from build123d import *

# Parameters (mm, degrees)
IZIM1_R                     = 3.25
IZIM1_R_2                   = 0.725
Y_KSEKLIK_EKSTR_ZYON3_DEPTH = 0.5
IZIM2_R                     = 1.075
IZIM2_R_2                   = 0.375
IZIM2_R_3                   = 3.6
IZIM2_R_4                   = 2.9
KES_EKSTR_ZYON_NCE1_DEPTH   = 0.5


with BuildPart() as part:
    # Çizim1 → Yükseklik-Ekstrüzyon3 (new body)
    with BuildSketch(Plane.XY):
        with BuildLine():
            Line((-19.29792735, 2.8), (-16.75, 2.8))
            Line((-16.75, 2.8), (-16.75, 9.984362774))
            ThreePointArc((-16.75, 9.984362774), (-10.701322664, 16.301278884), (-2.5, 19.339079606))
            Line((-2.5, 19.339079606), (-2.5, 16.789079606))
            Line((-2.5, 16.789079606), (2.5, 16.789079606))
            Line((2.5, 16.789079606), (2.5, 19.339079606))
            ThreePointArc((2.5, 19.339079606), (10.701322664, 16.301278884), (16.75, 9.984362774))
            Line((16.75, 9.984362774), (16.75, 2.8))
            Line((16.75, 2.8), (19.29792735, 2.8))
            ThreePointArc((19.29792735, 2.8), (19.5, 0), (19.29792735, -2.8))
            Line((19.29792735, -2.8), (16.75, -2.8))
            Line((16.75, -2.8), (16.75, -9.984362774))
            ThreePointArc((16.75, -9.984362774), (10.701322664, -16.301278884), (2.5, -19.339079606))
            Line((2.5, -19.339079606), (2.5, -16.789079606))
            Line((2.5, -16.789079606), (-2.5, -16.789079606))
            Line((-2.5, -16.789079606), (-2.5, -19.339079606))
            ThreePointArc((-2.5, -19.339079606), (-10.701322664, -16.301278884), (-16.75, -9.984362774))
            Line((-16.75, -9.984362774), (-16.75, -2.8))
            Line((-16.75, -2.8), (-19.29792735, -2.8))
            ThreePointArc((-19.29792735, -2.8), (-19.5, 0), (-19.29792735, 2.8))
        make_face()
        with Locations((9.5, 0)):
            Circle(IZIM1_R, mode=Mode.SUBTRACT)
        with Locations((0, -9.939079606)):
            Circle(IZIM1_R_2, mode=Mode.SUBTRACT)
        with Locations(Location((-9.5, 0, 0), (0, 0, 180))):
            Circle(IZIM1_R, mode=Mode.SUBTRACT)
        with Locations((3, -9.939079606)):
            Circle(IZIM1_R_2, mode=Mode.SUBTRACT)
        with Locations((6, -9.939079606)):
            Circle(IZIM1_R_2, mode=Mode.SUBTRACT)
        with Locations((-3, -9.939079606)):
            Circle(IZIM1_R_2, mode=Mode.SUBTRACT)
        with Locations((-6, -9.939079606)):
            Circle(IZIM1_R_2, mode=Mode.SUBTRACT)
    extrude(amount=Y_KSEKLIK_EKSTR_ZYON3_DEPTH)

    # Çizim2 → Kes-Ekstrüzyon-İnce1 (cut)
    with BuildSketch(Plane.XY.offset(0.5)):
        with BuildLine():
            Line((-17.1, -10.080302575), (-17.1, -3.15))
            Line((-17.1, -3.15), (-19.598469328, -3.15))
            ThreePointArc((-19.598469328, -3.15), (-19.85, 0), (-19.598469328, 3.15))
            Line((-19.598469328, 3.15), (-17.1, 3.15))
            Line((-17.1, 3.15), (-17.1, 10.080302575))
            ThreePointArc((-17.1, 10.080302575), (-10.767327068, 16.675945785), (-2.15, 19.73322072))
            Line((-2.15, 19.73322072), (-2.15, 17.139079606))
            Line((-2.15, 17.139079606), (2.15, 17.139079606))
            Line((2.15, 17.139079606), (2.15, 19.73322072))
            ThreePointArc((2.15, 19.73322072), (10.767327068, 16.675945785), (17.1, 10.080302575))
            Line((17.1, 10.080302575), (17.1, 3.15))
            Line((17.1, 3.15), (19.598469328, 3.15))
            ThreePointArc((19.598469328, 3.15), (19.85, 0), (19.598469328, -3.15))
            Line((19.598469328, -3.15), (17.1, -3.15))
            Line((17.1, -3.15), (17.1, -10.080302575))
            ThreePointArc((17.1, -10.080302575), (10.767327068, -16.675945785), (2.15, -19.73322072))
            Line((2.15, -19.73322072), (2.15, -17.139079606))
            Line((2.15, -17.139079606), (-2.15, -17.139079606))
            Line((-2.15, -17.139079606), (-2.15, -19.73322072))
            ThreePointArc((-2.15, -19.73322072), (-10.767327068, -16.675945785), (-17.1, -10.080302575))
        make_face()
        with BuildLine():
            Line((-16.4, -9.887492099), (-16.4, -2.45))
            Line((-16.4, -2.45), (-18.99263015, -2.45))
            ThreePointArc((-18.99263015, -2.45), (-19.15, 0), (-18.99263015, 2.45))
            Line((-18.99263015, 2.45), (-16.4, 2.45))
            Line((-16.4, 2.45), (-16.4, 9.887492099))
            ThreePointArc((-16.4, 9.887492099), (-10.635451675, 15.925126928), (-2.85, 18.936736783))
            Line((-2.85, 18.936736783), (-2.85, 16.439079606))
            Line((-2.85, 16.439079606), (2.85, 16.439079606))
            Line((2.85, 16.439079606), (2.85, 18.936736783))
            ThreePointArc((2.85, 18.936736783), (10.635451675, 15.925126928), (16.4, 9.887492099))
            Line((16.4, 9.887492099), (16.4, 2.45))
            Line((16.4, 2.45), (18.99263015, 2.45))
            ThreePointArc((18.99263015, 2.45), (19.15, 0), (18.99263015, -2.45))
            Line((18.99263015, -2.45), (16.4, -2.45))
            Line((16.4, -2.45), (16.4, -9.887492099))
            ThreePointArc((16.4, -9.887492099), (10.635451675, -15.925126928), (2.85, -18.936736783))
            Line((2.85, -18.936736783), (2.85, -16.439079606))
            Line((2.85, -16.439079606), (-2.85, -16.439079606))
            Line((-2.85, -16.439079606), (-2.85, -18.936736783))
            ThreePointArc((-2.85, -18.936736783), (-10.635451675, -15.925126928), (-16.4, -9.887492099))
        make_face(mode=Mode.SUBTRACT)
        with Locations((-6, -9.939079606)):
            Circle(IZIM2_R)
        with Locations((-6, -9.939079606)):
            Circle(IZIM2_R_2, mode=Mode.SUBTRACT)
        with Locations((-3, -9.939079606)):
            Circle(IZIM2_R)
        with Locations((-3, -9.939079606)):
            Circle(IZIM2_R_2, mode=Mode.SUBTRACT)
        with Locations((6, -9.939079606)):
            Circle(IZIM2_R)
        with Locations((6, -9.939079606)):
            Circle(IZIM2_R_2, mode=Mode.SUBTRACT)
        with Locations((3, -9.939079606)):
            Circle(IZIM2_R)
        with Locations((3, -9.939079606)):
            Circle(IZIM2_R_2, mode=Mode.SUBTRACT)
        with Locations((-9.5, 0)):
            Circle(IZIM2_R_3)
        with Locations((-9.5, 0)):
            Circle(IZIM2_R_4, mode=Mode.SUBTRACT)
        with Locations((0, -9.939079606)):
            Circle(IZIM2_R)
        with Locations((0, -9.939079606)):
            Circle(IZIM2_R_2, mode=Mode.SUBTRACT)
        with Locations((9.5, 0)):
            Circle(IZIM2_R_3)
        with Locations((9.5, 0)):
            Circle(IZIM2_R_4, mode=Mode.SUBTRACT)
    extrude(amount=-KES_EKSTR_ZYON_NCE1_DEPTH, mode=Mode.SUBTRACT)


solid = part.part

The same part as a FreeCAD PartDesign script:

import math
import FreeCAD as App
import Part
import Sketcher

V = App.Vector

doc = App.newDocument("Part")
body = doc.addObject("PartDesign::Body", "Body")

# Sketch on XY plane
sketch1 = doc.addObject("Sketcher::SketchObject", "Sketch")
body.addObject(sketch1)
sketch1.AttachmentSupport = (doc.XY_Plane, [""])
sketch1.MapMode = "FlatFace"
sketch1.addGeometry(Part.LineSegment(V(-16.8, 2.8, 0), V(-19.3, 2.8, 0)), False)
sketch1.addGeometry(Part.ArcOfCircle(Part.Circle(V(0, 0, 0), V(0, 0, 1), 19.5), math.radians(171.74), math.radians(188.26)), False)
sketch1.addGeometry(Part.LineSegment(V(-19.3, -2.8, 0), V(-16.8, -2.8, 0)), False)
sketch1.addGeometry(Part.LineSegment(V(-16.8, -2.8, 0), V(-16.8, -10, 0)), False)
sketch1.addGeometry(Part.ArcOfCircle(Part.Circle(V(0, 0, 0), V(0, 0, 1), 19.5), math.radians(-149), math.radians(-97)), False)
sketch1.addGeometry(Part.LineSegment(V(-2.5, -19.3, 0), V(-2.5, -16.8, 0)), False)
sketch1.addGeometry(Part.LineSegment(V(-2.5, -16.8, 0), V(2.5, -16.8, 0)), False)
sketch1.addGeometry(Part.LineSegment(V(2.5, -16.8, 0), V(2.5, -19.3, 0)), False)
sketch1.addGeometry(Part.ArcOfCircle(Part.Circle(V(0, 0, 0), V(0, 0, 1), 19.5), math.radians(-83), math.radians(-31)), False)
sketch1.addGeometry(Part.LineSegment(V(16.8, -10, 0), V(16.8, -2.8, 0)), False)
sketch1.addGeometry(Part.LineSegment(V(16.8, -2.8, 0), V(19.3, -2.8, 0)), False)
sketch1.addGeometry(Part.ArcOfCircle(Part.Circle(V(0, 0, 0), V(0, 0, 1), 19.5), math.radians(-8.26), math.radians(8.26)), False)
sketch1.addGeometry(Part.LineSegment(V(19.3, 2.8, 0), V(16.8, 2.8, 0)), False)
sketch1.addGeometry(Part.LineSegment(V(16.8, 2.8, 0), V(16.8, 10, 0)), False)
sketch1.addGeometry(Part.ArcOfCircle(Part.Circle(V(0, 0, 0), V(0, 0, 1), 19.5), math.radians(31), math.radians(83)), False)
sketch1.addGeometry(Part.LineSegment(V(2.5, 19.3, 0), V(2.5, 16.8, 0)), False)
sketch1.addGeometry(Part.LineSegment(V(2.5, 16.8, 0), V(-2.5, 16.8, 0)), False)
sketch1.addGeometry(Part.LineSegment(V(-2.5, 16.8, 0), V(-2.5, 19.3, 0)), False)
sketch1.addGeometry(Part.ArcOfCircle(Part.Circle(V(0, 0, 0), V(0, 0, 1), 19.5), math.radians(97), math.radians(149)), False)
sketch1.addGeometry(Part.LineSegment(V(-16.8, 10, 0), V(-16.8, 2.8, 0)), False)
sketch1.addGeometry(Part.Circle(V(6, -9.9, 0), V(0, 0, 1), 0.7), False)
sketch1.addGeometry(Part.Circle(V(3, -9.9, 0), V(0, 0, 1), 0.7), False)
sketch1.addGeometry(Part.Circle(V(0, -9.9, 0), V(0, 0, 1), 0.7), False)
sketch1.addGeometry(Part.Circle(V(-3, -9.9, 0), V(0, 0, 1), 0.7), False)
sketch1.addGeometry(Part.Circle(V(-6, -9.9, 0), V(0, 0, 1), 0.7), False)
sketch1.addGeometry(Part.Circle(V(9.5, 0, 0), V(0, 0, 1), 3.2), False)
sketch1.addGeometry(Part.Circle(V(-9.5, 0, 0), V(0, 0, 1), 3.2), False)
sketch1.addConstraint(Sketcher.Constraint("Coincident", 0, 2, 1, 1))
sketch1.addConstraint(Sketcher.Constraint("Coincident", 1, 2, 2, 1))
sketch1.addConstraint(Sketcher.Constraint("Coincident", 2, 2, 3, 1))
sketch1.addConstraint(Sketcher.Constraint("Coincident", 3, 2, 4, 1))
sketch1.addConstraint(Sketcher.Constraint("Coincident", 4, 2, 5, 1))
sketch1.addConstraint(Sketcher.Constraint("Coincident", 5, 2, 6, 1))
sketch1.addConstraint(Sketcher.Constraint("Coincident", 6, 2, 7, 1))
sketch1.addConstraint(Sketcher.Constraint("Coincident", 7, 2, 8, 1))
sketch1.addConstraint(Sketcher.Constraint("Coincident", 8, 2, 9, 1))
sketch1.addConstraint(Sketcher.Constraint("Coincident", 9, 2, 10, 1))
sketch1.addConstraint(Sketcher.Constraint("Coincident", 10, 2, 11, 1))
sketch1.addConstraint(Sketcher.Constraint("Coincident", 11, 2, 12, 1))
sketch1.addConstraint(Sketcher.Constraint("Coincident", 12, 2, 13, 1))
sketch1.addConstraint(Sketcher.Constraint("Coincident", 13, 2, 14, 1))
sketch1.addConstraint(Sketcher.Constraint("Coincident", 14, 2, 15, 1))
sketch1.addConstraint(Sketcher.Constraint("Coincident", 15, 2, 16, 1))
sketch1.addConstraint(Sketcher.Constraint("Coincident", 16, 2, 17, 1))
sketch1.addConstraint(Sketcher.Constraint("Coincident", 17, 2, 18, 1))
sketch1.addConstraint(Sketcher.Constraint("Coincident", 18, 2, 19, 1))
sketch1.addConstraint(Sketcher.Constraint("Coincident", 19, 2, 0, 1))
sketch1.addConstraint(Sketcher.Constraint("Horizontal", 0))
sketch1.addConstraint(Sketcher.Constraint("Horizontal", 2))
sketch1.addConstraint(Sketcher.Constraint("Vertical", 3))
sketch1.addConstraint(Sketcher.Constraint("Vertical", 5))
sketch1.addConstraint(Sketcher.Constraint("Horizontal", 6))
sketch1.addConstraint(Sketcher.Constraint("Vertical", 7))
sketch1.addConstraint(Sketcher.Constraint("Vertical", 9))
sketch1.addConstraint(Sketcher.Constraint("Horizontal", 10))
sketch1.addConstraint(Sketcher.Constraint("Horizontal", 12))
sketch1.addConstraint(Sketcher.Constraint("Vertical", 13))
sketch1.addConstraint(Sketcher.Constraint("Vertical", 15))
sketch1.addConstraint(Sketcher.Constraint("Horizontal", 16))
sketch1.addConstraint(Sketcher.Constraint("Vertical", 17))
sketch1.addConstraint(Sketcher.Constraint("Vertical", 19))
sketch1.addConstraint(Sketcher.Constraint("Coincident", 1, 3, -1, 1))
sketch1.addConstraint(Sketcher.Constraint("Coincident", 4, 3, -1, 1))
sketch1.addConstraint(Sketcher.Constraint("Coincident", 8, 3, -1, 1))
sketch1.addConstraint(Sketcher.Constraint("Coincident", 11, 3, -1, 1))
sketch1.addConstraint(Sketcher.Constraint("Coincident", 14, 3, -1, 1))
sketch1.addConstraint(Sketcher.Constraint("Coincident", 18, 3, -1, 1))
sketch1.addConstraint(Sketcher.Constraint("Equal", 1, 4))
sketch1.addConstraint(Sketcher.Constraint("Equal", 4, 8))
sketch1.addConstraint(Sketcher.Constraint("Equal", 8, 11))
sketch1.addConstraint(Sketcher.Constraint("Equal", 11, 14))
sketch1.addConstraint(Sketcher.Constraint("Equal", 14, 18))
sketch1.addConstraint(Sketcher.Constraint("Equal", 20, 21))
sketch1.addConstraint(Sketcher.Constraint("Equal", 21, 22))
sketch1.addConstraint(Sketcher.Constraint("Equal", 22, 23))
sketch1.addConstraint(Sketcher.Constraint("Equal", 23, 24))
sketch1.addConstraint(Sketcher.Constraint("Equal", 25, 26))
sketch1.addConstraint(Sketcher.Constraint("Symmetric", 25, 3, 26, 3, -1, 1))
sketch1.addConstraint(Sketcher.Constraint("Symmetric", 2, 2, 12, 2, -1, 1))
sketch1.addConstraint(Sketcher.Constraint("Symmetric", 5, 2, 15, 2, -1, 1))
sketch1.addConstraint(Sketcher.Constraint("Symmetric", 9, 2, 19, 2, -1, 1))
sketch1.addConstraint(Sketcher.Constraint("Symmetric", 21, 3, 23, 3, -2))
sketch1.addConstraint(Sketcher.Constraint("Symmetric", 20, 3, 24, 3, -2))
sketch1.addConstraint(Sketcher.Constraint("Symmetric", 2, 2, 9, 2, -2))
sketch1.addConstraint(Sketcher.Constraint("PointOnObject", 22, 3, -2))
sketch1.addConstraint(Sketcher.Constraint("PointOnObject", 25, 3, -1))
sketch1.addConstraint(Sketcher.Constraint("Horizontal", 20, 3, 21, 3))
sketch1.addConstraint(Sketcher.Constraint("Horizontal", 21, 3, 22, 3))
sketch1.addConstraint(Sketcher.Constraint("Horizontal", 4, 2, 7, 2))
sketch1.addConstraint(Sketcher.Constraint("Horizontal", 14, 2, 17, 2))
sketch1.addConstraint(Sketcher.Constraint("Diameter", 25, 6.5))
sketch1.addConstraint(Sketcher.Constraint("Radius", 1, 19.5))
sketch1.addConstraint(Sketcher.Constraint("Diameter", 20, 1.45))
sketch1.addConstraint(Sketcher.Constraint("DistanceX", 6, 1, 6, 2, 5.0))
sketch1.addConstraint(Sketcher.Constraint("DistanceX", -1, 1, 20, 3, 6.0))
sketch1.addConstraint(Sketcher.Constraint("DistanceX", -1, 1, 21, 3, 3.0))
sketch1.addConstraint(Sketcher.Constraint("DistanceY", 5, 1, 5, 2, 2.55))
sketch1.addConstraint(Sketcher.Constraint("DistanceX", -1, 1, 25, 3, 9.5))
sketch1.addConstraint(Sketcher.Constraint("DistanceY", -1, 1, 0, 2, 2.8))
sketch1.addConstraint(Sketcher.Constraint("DistanceY", 4, 2, 23, 3, 9.4))
sketch1.addConstraint(Sketcher.Constraint("DistanceX", 2, 2, -1, 1, 16.75))
pad1 = doc.addObject("PartDesign::Pad", "Pad")
body.addObject(pad1)
pad1.Profile = sketch1
pad1.Length = 0.5

# Sketch on XY plane
sketch2 = doc.addObject("Sketcher::SketchObject", "Sketch001")
body.addObject(sketch2)
sketch2.AttachmentSupport = (doc.XY_Plane, [""])
sketch2.MapMode = "FlatFace"
sketch2.AttachmentOffset = App.Placement(V(0, 0, 0.5), App.Rotation())
sketch2.addGeometry(Part.LineSegment(V(-17.1, -3.15, 0), V(-17.1, -10.08, 0)), False)
sketch2.addGeometry(Part.ArcOfCircle(Part.Circle(V(0, 0, 0), V(0, 0, 1), 19.85), math.radians(-149), math.radians(-96)), False)
sketch2.addGeometry(Part.LineSegment(V(-2.15, -19.73, 0), V(-2.15, -17.14, 0)), False)
sketch2.addGeometry(Part.LineSegment(V(-2.15, -17.14, 0), V(2.15, -17.14, 0)), False)
sketch2.addGeometry(Part.LineSegment(V(2.15, -17.14, 0), V(2.15, -19.73, 0)), False)
sketch2.addGeometry(Part.ArcOfCircle(Part.Circle(V(0, 0, 0), V(0, 0, 1), 19.85), math.radians(-84), math.radians(-31)), False)
sketch2.addGeometry(Part.LineSegment(V(17.1, -10.08, 0), V(17.1, -3.15, 0)), False)
sketch2.addGeometry(Part.LineSegment(V(17.1, -3.15, 0), V(19.6, -3.15, 0)), False)
sketch2.addGeometry(Part.ArcOfCircle(Part.Circle(V(0, 0, 0), V(0, 0, 1), 19.85), math.radians(-9.13), math.radians(9.13)), False)
sketch2.addGeometry(Part.LineSegment(V(19.6, 3.15, 0), V(17.1, 3.15, 0)), False)
sketch2.addGeometry(Part.LineSegment(V(17.1, 3.15, 0), V(17.1, 10.08, 0)), False)
sketch2.addGeometry(Part.ArcOfCircle(Part.Circle(V(0, 0, 0), V(0, 0, 1), 19.85), math.radians(31), math.radians(84)), False)
sketch2.addGeometry(Part.LineSegment(V(2.15, 19.73, 0), V(2.15, 17.14, 0)), False)
sketch2.addGeometry(Part.LineSegment(V(2.15, 17.14, 0), V(-2.15, 17.14, 0)), False)
sketch2.addGeometry(Part.LineSegment(V(-2.15, 17.14, 0), V(-2.15, 19.73, 0)), False)
sketch2.addGeometry(Part.ArcOfCircle(Part.Circle(V(0, 0, 0), V(0, 0, 1), 19.85), math.radians(96), math.radians(149)), False)
sketch2.addGeometry(Part.LineSegment(V(-17.1, 10.08, 0), V(-17.1, 3.15, 0)), False)
sketch2.addGeometry(Part.LineSegment(V(-17.1, 3.15, 0), V(-19.6, 3.15, 0)), False)
sketch2.addGeometry(Part.ArcOfCircle(Part.Circle(V(0, 0, 0), V(0, 0, 1), 19.85), math.radians(170.87), math.radians(189.13)), False)
sketch2.addGeometry(Part.LineSegment(V(-19.6, -3.15, 0), V(-17.1, -3.15, 0)), False)
sketch2.addGeometry(Part.LineSegment(V(-16.4, -9.89, 0), V(-16.4, -2.45, 0)), False)
sketch2.addGeometry(Part.LineSegment(V(-16.4, -2.45, 0), V(-18.99, -2.45, 0)), False)
sketch2.addGeometry(Part.ArcOfCircle(Part.Circle(V(0, 0, 0), V(0, 0, 1), 19.15), math.radians(172.65), math.radians(187.35)), False)
sketch2.addGeometry(Part.LineSegment(V(-18.99, 2.45, 0), V(-16.4, 2.45, 0)), False)
sketch2.addGeometry(Part.LineSegment(V(-16.4, 2.45, 0), V(-16.4, 9.89, 0)), False)
sketch2.addGeometry(Part.ArcOfCircle(Part.Circle(V(0, 0, 0), V(0, 0, 1), 19.15), math.radians(99), math.radians(149)), False)
sketch2.addGeometry(Part.LineSegment(V(-2.85, 18.94, 0), V(-2.85, 16.44, 0)), False)
sketch2.addGeometry(Part.LineSegment(V(-2.85, 16.44, 0), V(2.85, 16.44, 0)), False)
sketch2.addGeometry(Part.LineSegment(V(2.85, 16.44, 0), V(2.85, 18.94, 0)), False)
sketch2.addGeometry(Part.ArcOfCircle(Part.Circle(V(0, 0, 0), V(0, 0, 1), 19.15), math.radians(31), math.radians(81)), False)
sketch2.addGeometry(Part.LineSegment(V(16.4, 9.89, 0), V(16.4, 2.45, 0)), False)
sketch2.addGeometry(Part.LineSegment(V(16.4, 2.45, 0), V(18.99, 2.45, 0)), False)
sketch2.addGeometry(Part.ArcOfCircle(Part.Circle(V(0, 0, 0), V(0, 0, 1), 19.15), math.radians(-7.35), math.radians(7.35)), False)
sketch2.addGeometry(Part.LineSegment(V(18.99, -2.45, 0), V(16.4, -2.45, 0)), False)
sketch2.addGeometry(Part.LineSegment(V(16.4, -2.45, 0), V(16.4, -9.89, 0)), False)
sketch2.addGeometry(Part.ArcOfCircle(Part.Circle(V(0, 0, 0), V(0, 0, 1), 19.15), math.radians(-81), math.radians(-31)), False)
sketch2.addGeometry(Part.LineSegment(V(2.85, -18.94, 0), V(2.85, -16.44, 0)), False)
sketch2.addGeometry(Part.LineSegment(V(2.85, -16.44, 0), V(-2.85, -16.44, 0)), False)
sketch2.addGeometry(Part.LineSegment(V(-2.85, -16.44, 0), V(-2.85, -18.94, 0)), False)
sketch2.addGeometry(Part.ArcOfCircle(Part.Circle(V(0, 0, 0), V(0, 0, 1), 19.15), math.radians(-149), math.radians(-99)), False)
sketch2.addGeometry(Part.Circle(V(-6, -9.94, 0), V(0, 0, 1), 1.07), False)
sketch2.addGeometry(Part.Circle(V(-6, -9.94, 0), V(0, 0, 1), 0.38), False)
sketch2.addGeometry(Part.Circle(V(-3, -9.94, 0), V(0, 0, 1), 1.07), False)
sketch2.addGeometry(Part.Circle(V(-3, -9.94, 0), V(0, 0, 1), 0.38), False)
sketch2.addGeometry(Part.Circle(V(6, -9.94, 0), V(0, 0, 1), 1.07), False)
sketch2.addGeometry(Part.Circle(V(6, -9.94, 0), V(0, 0, 1), 0.38), False)
sketch2.addGeometry(Part.Circle(V(3, -9.94, 0), V(0, 0, 1), 1.07), False)
sketch2.addGeometry(Part.Circle(V(3, -9.94, 0), V(0, 0, 1), 0.38), False)
sketch2.addGeometry(Part.Circle(V(-9.5, 0, 0), V(0, 0, 1), 3.6), False)
sketch2.addGeometry(Part.Circle(V(-9.5, 0, 0), V(0, 0, 1), 2.9), False)
sketch2.addGeometry(Part.Circle(V(0, -9.94, 0), V(0, 0, 1), 1.07), False)
sketch2.addGeometry(Part.Circle(V(0, -9.94, 0), V(0, 0, 1), 0.38), False)
sketch2.addGeometry(Part.Circle(V(9.5, 0, 0), V(0, 0, 1), 3.6), False)
sketch2.addGeometry(Part.Circle(V(9.5, 0, 0), V(0, 0, 1), 2.9), False)
sketch2.addConstraint(Sketcher.Constraint("Coincident", 0, 2, 1, 1))
sketch2.addConstraint(Sketcher.Constraint("Coincident", 1, 2, 2, 1))
sketch2.addConstraint(Sketcher.Constraint("Coincident", 2, 2, 3, 1))
sketch2.addConstraint(Sketcher.Constraint("Coincident", 3, 2, 4, 1))
sketch2.addConstraint(Sketcher.Constraint("Coincident", 4, 2, 5, 1))
sketch2.addConstraint(Sketcher.Constraint("Coincident", 5, 2, 6, 1))
sketch2.addConstraint(Sketcher.Constraint("Coincident", 6, 2, 7, 1))
sketch2.addConstraint(Sketcher.Constraint("Coincident", 7, 2, 8, 1))
sketch2.addConstraint(Sketcher.Constraint("Coincident", 8, 2, 9, 1))
sketch2.addConstraint(Sketcher.Constraint("Coincident", 9, 2, 10, 1))
sketch2.addConstraint(Sketcher.Constraint("Coincident", 10, 2, 11, 1))
sketch2.addConstraint(Sketcher.Constraint("Coincident", 11, 2, 12, 1))
sketch2.addConstraint(Sketcher.Constraint("Coincident", 12, 2, 13, 1))
sketch2.addConstraint(Sketcher.Constraint("Coincident", 13, 2, 14, 1))
sketch2.addConstraint(Sketcher.Constraint("Coincident", 14, 2, 15, 1))
sketch2.addConstraint(Sketcher.Constraint("Coincident", 15, 2, 16, 1))
sketch2.addConstraint(Sketcher.Constraint("Coincident", 16, 2, 17, 1))
sketch2.addConstraint(Sketcher.Constraint("Coincident", 17, 2, 18, 1))
sketch2.addConstraint(Sketcher.Constraint("Coincident", 18, 2, 19, 1))
sketch2.addConstraint(Sketcher.Constraint("Coincident", 19, 2, 0, 1))
sketch2.addConstraint(Sketcher.Constraint("Coincident", 20, 2, 21, 1))
sketch2.addConstraint(Sketcher.Constraint("Coincident", 21, 2, 22, 2))
sketch2.addConstraint(Sketcher.Constraint("Coincident", 22, 1, 23, 1))
sketch2.addConstraint(Sketcher.Constraint("Coincident", 23, 2, 24, 1))
sketch2.addConstraint(Sketcher.Constraint("Coincident", 24, 2, 25, 2))
sketch2.addConstraint(Sketcher.Constraint("Coincident", 25, 1, 26, 1))
sketch2.addConstraint(Sketcher.Constraint("Coincident", 26, 2, 27, 1))
sketch2.addConstraint(Sketcher.Constraint("Coincident", 27, 2, 28, 1))
sketch2.addConstraint(Sketcher.Constraint("Coincident", 28, 2, 29, 2))
sketch2.addConstraint(Sketcher.Constraint("Coincident", 29, 1, 30, 1))
sketch2.addConstraint(Sketcher.Constraint("Coincident", 30, 2, 31, 1))
sketch2.addConstraint(Sketcher.Constraint("Coincident", 31, 2, 32, 2))
sketch2.addConstraint(Sketcher.Constraint("Coincident", 32, 1, 33, 1))
sketch2.addConstraint(Sketcher.Constraint("Coincident", 33, 2, 34, 1))
sketch2.addConstraint(Sketcher.Constraint("Coincident", 34, 2, 35, 2))
sketch2.addConstraint(Sketcher.Constraint("Coincident", 35, 1, 36, 1))
sketch2.addConstraint(Sketcher.Constraint("Coincident", 36, 2, 37, 1))
sketch2.addConstraint(Sketcher.Constraint("Coincident", 37, 2, 38, 1))
sketch2.addConstraint(Sketcher.Constraint("Coincident", 38, 2, 39, 2))
sketch2.addConstraint(Sketcher.Constraint("Coincident", 39, 1, 20, 1))
sketch2.addConstraint(Sketcher.Constraint("Vertical", 0))
sketch2.addConstraint(Sketcher.Constraint("Vertical", 2))
sketch2.addConstraint(Sketcher.Constraint("Horizontal", 3))
sketch2.addConstraint(Sketcher.Constraint("Vertical", 4))
sketch2.addConstraint(Sketcher.Constraint("Vertical", 6))
sketch2.addConstraint(Sketcher.Constraint("Horizontal", 7))
sketch2.addConstraint(Sketcher.Constraint("Horizontal", 9))
sketch2.addConstraint(Sketcher.Constraint("Vertical", 10))
sketch2.addConstraint(Sketcher.Constraint("Vertical", 12))
sketch2.addConstraint(Sketcher.Constraint("Horizontal", 13))
sketch2.addConstraint(Sketcher.Constraint("Vertical", 14))
sketch2.addConstraint(Sketcher.Constraint("Vertical", 16))
sketch2.addConstraint(Sketcher.Constraint("Horizontal", 17))
sketch2.addConstraint(Sketcher.Constraint("Horizontal", 19))
sketch2.addConstraint(Sketcher.Constraint("Vertical", 20))
sketch2.addConstraint(Sketcher.Constraint("Horizontal", 21))
sketch2.addConstraint(Sketcher.Constraint("Horizontal", 23))
sketch2.addConstraint(Sketcher.Constraint("Vertical", 24))
sketch2.addConstraint(Sketcher.Constraint("Vertical", 26))
sketch2.addConstraint(Sketcher.Constraint("Horizontal", 27))
sketch2.addConstraint(Sketcher.Constraint("Vertical", 28))
sketch2.addConstraint(Sketcher.Constraint("Vertical", 30))
sketch2.addConstraint(Sketcher.Constraint("Horizontal", 31))
sketch2.addConstraint(Sketcher.Constraint("Horizontal", 33))
sketch2.addConstraint(Sketcher.Constraint("Vertical", 34))
sketch2.addConstraint(Sketcher.Constraint("Vertical", 36))
sketch2.addConstraint(Sketcher.Constraint("Horizontal", 37))
sketch2.addConstraint(Sketcher.Constraint("Vertical", 38))
sketch2.addConstraint(Sketcher.Constraint("Coincident", 1, 3, -1, 1))
sketch2.addConstraint(Sketcher.Constraint("Coincident", 5, 3, -1, 1))
sketch2.addConstraint(Sketcher.Constraint("Coincident", 8, 3, -1, 1))
sketch2.addConstraint(Sketcher.Constraint("Coincident", 11, 3, -1, 1))
sketch2.addConstraint(Sketcher.Constraint("Coincident", 15, 3, -1, 1))
sketch2.addConstraint(Sketcher.Constraint("Coincident", 18, 3, -1, 1))
sketch2.addConstraint(Sketcher.Constraint("Coincident", 22, 3, -1, 1))
sketch2.addConstraint(Sketcher.Constraint("Coincident", 25, 3, -1, 1))
sketch2.addConstraint(Sketcher.Constraint("Coincident", 29, 3, -1, 1))
sketch2.addConstraint(Sketcher.Constraint("Coincident", 32, 3, -1, 1))
sketch2.addConstraint(Sketcher.Constraint("Coincident", 35, 3, -1, 1))
sketch2.addConstraint(Sketcher.Constraint("Coincident", 39, 3, -1, 1))
sketch2.addConstraint(Sketcher.Constraint("Coincident", 41, 3, 40, 3))
sketch2.addConstraint(Sketcher.Constraint("Coincident", 43, 3, 42, 3))
sketch2.addConstraint(Sketcher.Constraint("Coincident", 45, 3, 44, 3))
sketch2.addConstraint(Sketcher.Constraint("Coincident", 47, 3, 46, 3))
sketch2.addConstraint(Sketcher.Constraint("Coincident", 49, 3, 48, 3))
sketch2.addConstraint(Sketcher.Constraint("Coincident", 51, 3, 50, 3))
sketch2.addConstraint(Sketcher.Constraint("Coincident", 53, 3, 52, 3))
sketch2.addConstraint(Sketcher.Constraint("Equal", 1, 5))
sketch2.addConstraint(Sketcher.Constraint("Equal", 5, 8))
sketch2.addConstraint(Sketcher.Constraint("Equal", 8, 11))
sketch2.addConstraint(Sketcher.Constraint("Equal", 11, 15))
sketch2.addConstraint(Sketcher.Constraint("Equal", 15, 18))
sketch2.addConstraint(Sketcher.Constraint("Equal", 22, 25))
sketch2.addConstraint(Sketcher.Constraint("Equal", 25, 29))
sketch2.addConstraint(Sketcher.Constraint("Equal", 29, 32))
sketch2.addConstraint(Sketcher.Constraint("Equal", 32, 35))
sketch2.addConstraint(Sketcher.Constraint("Equal", 35, 39))
sketch2.addConstraint(Sketcher.Constraint("Equal", 40, 42))
sketch2.addConstraint(Sketcher.Constraint("Equal", 41, 43))
sketch2.addConstraint(Sketcher.Constraint("Equal", 42, 44))
sketch2.addConstraint(Sketcher.Constraint("Equal", 43, 45))
sketch2.addConstraint(Sketcher.Constraint("Equal", 44, 46))
sketch2.addConstraint(Sketcher.Constraint("Equal", 45, 47))
sketch2.addConstraint(Sketcher.Constraint("Equal", 46, 50))
sketch2.addConstraint(Sketcher.Constraint("Equal", 47, 51))
sketch2.addConstraint(Sketcher.Constraint("Equal", 48, 52))
sketch2.addConstraint(Sketcher.Constraint("Equal", 49, 53))
sketch2.addConstraint(Sketcher.Constraint("Symmetric", 48, 3, 52, 3, -1, 1))
sketch2.addConstraint(Sketcher.Constraint("Symmetric", 2, 2, 12, 2, -1, 1))
sketch2.addConstraint(Sketcher.Constraint("Symmetric", 6, 2, 16, 2, -1, 1))
sketch2.addConstraint(Sketcher.Constraint("Symmetric", 9, 2, 19, 2, -1, 1))
sketch2.addConstraint(Sketcher.Constraint("Symmetric", 20, 2, 30, 2, -1, 1))
sketch2.addConstraint(Sketcher.Constraint("Symmetric", 23, 2, 33, 2, -1, 1))
sketch2.addConstraint(Sketcher.Constraint("Symmetric", 26, 2, 36, 2, -1, 1))
sketch2.addConstraint(Sketcher.Constraint("Symmetric", 40, 3, 44, 3, -2))
sketch2.addConstraint(Sketcher.Constraint("Symmetric", 42, 3, 46, 3, -2))
sketch2.addConstraint(Sketcher.Constraint("Symmetric", 9, 2, 16, 2, -2))
sketch2.addConstraint(Sketcher.Constraint("Symmetric", 23, 2, 30, 2, -2))
sketch2.addConstraint(Sketcher.Constraint("PointOnObject", 48, 3, -1))
sketch2.addConstraint(Sketcher.Constraint("PointOnObject", 50, 3, -2))
sketch2.addConstraint(Sketcher.Constraint("Horizontal", 41, 3, 42, 3))
sketch2.addConstraint(Sketcher.Constraint("Horizontal", 47, 3, 50, 3))
sketch2.addConstraint(Sketcher.Constraint("Horizontal", 1, 2, 4, 2))
sketch2.addConstraint(Sketcher.Constraint("Horizontal", 11, 2, 14, 2))
sketch2.addConstraint(Sketcher.Constraint("Horizontal", 25, 1, 28, 2))
sketch2.addConstraint(Sketcher.Constraint("Horizontal", 35, 1, 38, 2))
sketch2.addConstraint(Sketcher.Constraint("Diameter", 48, 7.2))
sketch2.addConstraint(Sketcher.Constraint("Diameter", 49, 5.8))
sketch2.addConstraint(Sketcher.Constraint("Diameter", 40, 2.15))
sketch2.addConstraint(Sketcher.Constraint("Diameter", 41, 0.75))
sketch2.addConstraint(Sketcher.Constraint("Radius", 1, 19.85))
sketch2.addConstraint(Sketcher.Constraint("Radius", 22, 19.15))
sketch2.addConstraint(Sketcher.Constraint("DistanceX", 3, 1, 3, 2, 4.3))
sketch2.addConstraint(Sketcher.Constraint("DistanceX", 27, 1, 27, 2, 5.7))
sketch2.addConstraint(Sketcher.Constraint("DistanceX", 40, 3, -1, 1, 6.0))
sketch2.addConstraint(Sketcher.Constraint("DistanceX", 42, 3, -1, 1, 3.0))
sketch2.addConstraint(Sketcher.Constraint("DistanceX", 48, 3, -1, 1, 9.5))
sketch2.addConstraint(Sketcher.Constraint("DistanceX", 0, 2, -1, 1, 17.1))
sketch2.addConstraint(Sketcher.Constraint("DistanceX", 20, 2, -1, 1, 16.4))
sketch2.addConstraint(Sketcher.Constraint("DistanceY", 6, 2, -1, 1, 3.15))
sketch2.addConstraint(Sketcher.Constraint("DistanceY", 20, 2, -1, 1, 2.45))
sketch2.addConstraint(Sketcher.Constraint("DistanceY", 2, 1, 2, 2, 2.594141))
sketch2.addConstraint(Sketcher.Constraint("DistanceY", 26, 2, 26, 1, 2.497657))
sketch2.addConstraint(Sketcher.Constraint("DistanceY", 40, 3, -1, 1, 9.93908))
pocket1 = doc.addObject("PartDesign::Pocket", "Pocket")
body.addObject(pocket1)
pocket1.Profile = sketch2
pocket1.Length = 0.5

doc.recompute()
